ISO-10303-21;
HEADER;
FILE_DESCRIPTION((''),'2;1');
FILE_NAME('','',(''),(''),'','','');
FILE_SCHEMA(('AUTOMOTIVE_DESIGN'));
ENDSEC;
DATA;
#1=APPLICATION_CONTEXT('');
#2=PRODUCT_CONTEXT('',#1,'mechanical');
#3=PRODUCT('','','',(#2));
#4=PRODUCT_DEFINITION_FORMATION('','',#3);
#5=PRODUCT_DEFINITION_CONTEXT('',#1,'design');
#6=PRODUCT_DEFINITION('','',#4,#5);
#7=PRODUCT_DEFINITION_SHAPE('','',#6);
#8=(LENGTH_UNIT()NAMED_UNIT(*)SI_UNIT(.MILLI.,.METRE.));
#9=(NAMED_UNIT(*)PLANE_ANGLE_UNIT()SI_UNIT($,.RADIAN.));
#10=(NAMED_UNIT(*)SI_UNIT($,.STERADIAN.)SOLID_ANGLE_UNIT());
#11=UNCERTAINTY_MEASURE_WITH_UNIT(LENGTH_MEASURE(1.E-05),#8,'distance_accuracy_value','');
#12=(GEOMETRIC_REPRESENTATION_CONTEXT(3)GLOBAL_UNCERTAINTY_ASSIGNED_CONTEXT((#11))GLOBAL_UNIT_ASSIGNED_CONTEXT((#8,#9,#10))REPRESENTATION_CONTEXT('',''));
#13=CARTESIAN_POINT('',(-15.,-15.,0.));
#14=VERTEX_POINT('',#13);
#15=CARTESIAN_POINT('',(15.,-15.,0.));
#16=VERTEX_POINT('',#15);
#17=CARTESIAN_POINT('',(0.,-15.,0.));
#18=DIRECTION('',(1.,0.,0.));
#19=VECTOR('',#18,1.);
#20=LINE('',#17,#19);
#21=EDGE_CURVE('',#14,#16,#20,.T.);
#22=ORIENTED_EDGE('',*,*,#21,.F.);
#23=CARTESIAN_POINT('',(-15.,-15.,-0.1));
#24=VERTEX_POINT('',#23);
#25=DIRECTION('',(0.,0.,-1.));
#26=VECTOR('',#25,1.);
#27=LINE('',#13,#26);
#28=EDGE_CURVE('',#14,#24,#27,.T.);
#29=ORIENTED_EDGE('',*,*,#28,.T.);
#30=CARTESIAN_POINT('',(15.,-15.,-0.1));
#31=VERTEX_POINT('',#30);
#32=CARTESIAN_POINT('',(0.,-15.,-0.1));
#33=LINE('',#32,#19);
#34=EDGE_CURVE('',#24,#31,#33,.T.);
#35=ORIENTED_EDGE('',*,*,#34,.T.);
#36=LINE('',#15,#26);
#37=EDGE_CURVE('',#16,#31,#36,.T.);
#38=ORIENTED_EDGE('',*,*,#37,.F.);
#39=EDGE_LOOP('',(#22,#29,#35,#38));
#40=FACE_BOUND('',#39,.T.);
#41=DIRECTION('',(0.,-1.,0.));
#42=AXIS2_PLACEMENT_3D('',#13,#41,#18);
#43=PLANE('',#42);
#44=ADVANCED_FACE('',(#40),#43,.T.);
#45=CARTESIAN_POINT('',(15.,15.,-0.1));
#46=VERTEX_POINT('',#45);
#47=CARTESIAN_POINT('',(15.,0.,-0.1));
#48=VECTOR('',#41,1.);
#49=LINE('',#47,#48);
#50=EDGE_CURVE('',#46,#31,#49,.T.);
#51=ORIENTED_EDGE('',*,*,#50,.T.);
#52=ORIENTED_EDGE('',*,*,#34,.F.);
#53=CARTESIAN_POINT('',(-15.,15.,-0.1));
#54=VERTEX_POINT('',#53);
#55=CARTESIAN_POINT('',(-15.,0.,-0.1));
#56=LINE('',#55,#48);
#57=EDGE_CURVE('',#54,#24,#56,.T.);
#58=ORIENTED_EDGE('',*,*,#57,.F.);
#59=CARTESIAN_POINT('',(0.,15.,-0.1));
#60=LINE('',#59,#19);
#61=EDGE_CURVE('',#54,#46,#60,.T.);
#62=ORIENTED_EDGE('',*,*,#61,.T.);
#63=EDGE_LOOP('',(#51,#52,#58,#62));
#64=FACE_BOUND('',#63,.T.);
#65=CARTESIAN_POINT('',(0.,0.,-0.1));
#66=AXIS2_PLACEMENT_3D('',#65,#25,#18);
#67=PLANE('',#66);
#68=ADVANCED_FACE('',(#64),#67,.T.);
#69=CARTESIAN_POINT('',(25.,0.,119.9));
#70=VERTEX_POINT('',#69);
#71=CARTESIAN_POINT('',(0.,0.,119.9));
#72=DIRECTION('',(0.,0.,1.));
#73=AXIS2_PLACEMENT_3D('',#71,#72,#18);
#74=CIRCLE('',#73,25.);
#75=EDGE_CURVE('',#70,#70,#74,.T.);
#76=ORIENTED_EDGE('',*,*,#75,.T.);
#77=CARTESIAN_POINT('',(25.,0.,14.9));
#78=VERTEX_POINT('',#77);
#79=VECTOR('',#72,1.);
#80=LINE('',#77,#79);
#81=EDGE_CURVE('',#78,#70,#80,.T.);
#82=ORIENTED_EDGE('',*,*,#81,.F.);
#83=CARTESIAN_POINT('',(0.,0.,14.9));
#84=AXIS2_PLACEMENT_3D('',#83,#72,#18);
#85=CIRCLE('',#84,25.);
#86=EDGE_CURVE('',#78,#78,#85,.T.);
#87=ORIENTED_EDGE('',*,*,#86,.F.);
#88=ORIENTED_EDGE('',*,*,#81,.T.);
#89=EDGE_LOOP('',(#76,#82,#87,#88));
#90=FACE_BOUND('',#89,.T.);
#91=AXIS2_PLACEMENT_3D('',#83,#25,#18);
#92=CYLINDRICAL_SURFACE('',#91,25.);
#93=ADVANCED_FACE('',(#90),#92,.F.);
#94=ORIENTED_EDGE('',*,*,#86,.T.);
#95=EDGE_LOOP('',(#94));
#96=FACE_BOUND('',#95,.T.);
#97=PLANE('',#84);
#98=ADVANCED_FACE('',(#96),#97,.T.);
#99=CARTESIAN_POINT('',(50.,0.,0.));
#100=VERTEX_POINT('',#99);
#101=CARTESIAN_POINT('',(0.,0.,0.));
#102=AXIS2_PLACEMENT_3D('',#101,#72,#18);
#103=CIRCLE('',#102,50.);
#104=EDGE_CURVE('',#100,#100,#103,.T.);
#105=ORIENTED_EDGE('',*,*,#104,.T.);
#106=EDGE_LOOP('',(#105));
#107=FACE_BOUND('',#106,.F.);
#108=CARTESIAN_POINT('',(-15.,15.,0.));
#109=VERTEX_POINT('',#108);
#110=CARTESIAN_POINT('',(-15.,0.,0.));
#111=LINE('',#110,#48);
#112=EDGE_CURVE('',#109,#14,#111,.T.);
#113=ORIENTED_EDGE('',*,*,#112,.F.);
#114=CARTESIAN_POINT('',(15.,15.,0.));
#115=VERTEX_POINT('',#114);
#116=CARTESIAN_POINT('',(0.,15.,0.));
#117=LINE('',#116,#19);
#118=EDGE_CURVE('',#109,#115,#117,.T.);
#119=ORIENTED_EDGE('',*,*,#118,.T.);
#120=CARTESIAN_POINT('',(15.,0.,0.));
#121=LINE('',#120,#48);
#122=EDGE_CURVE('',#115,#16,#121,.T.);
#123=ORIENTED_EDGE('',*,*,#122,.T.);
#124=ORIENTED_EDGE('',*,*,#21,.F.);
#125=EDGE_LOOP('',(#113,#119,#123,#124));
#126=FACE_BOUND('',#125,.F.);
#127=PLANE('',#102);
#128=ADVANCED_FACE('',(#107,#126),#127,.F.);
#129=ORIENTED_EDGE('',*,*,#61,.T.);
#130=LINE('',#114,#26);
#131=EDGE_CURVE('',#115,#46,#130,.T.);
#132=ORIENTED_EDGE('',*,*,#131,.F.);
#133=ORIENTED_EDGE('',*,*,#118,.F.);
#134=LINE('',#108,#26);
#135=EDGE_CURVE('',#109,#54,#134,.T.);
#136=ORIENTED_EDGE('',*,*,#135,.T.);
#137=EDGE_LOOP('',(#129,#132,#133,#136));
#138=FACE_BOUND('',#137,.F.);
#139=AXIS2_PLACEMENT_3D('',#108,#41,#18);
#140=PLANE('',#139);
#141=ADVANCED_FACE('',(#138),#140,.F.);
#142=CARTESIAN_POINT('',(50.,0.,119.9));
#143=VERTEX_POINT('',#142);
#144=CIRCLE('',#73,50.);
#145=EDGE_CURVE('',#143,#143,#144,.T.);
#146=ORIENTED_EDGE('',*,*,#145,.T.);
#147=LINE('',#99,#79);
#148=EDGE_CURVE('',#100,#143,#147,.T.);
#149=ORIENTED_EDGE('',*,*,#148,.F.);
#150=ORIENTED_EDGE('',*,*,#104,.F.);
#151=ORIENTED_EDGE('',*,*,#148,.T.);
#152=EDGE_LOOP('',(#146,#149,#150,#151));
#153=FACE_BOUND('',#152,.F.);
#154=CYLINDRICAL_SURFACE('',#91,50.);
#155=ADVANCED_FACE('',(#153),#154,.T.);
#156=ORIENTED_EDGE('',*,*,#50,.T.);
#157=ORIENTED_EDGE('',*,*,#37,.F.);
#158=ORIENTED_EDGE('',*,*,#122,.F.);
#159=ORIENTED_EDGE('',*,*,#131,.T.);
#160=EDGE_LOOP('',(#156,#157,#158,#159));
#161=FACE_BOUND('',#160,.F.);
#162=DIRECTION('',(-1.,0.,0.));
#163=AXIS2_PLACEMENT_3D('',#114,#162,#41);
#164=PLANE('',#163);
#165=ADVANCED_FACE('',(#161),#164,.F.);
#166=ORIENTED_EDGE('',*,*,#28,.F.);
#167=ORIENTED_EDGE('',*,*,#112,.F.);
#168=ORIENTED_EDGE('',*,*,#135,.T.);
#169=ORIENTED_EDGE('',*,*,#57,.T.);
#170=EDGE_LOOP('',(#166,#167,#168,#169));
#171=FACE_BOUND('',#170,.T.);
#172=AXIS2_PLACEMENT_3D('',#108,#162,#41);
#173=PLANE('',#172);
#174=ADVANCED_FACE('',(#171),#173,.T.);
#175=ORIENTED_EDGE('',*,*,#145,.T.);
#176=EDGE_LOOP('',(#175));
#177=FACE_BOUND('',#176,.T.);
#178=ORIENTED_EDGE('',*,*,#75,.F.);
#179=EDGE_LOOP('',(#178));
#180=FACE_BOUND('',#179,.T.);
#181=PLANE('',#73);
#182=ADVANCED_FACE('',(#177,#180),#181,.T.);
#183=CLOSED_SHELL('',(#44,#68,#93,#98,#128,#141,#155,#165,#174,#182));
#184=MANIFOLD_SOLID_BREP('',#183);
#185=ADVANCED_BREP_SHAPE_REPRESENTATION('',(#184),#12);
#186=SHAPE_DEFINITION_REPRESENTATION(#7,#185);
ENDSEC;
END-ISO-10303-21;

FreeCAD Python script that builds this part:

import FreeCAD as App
import Part
import Sketcher
from FreeCAD import Vector

doc = App.newDocument("Part")
body = doc.addObject("PartDesign::Body", "Body")

# Sketch on XY plane
sketch1 = body.newObject("Sketcher::SketchObject", "Sketch")
sketch1.AttachmentSupport = (doc.getObject("XY_Plane"), [""])
sketch1.MapMode = "FlatFace"
sketch1.addGeometry(Part.Circle(Vector(0, 0, 0), Vector(0, 0, 1), 50), False)
sketch1.addConstraint([
    Sketcher.Constraint("Coincident", 0, 3, -1, 1),
    Sketcher.Constraint("Diameter", 0, 100.0),
])
pad1 = body.newObject("PartDesign::Pad", "Pad")
pad1.Profile = sketch1
pad1.Length = 14.9

# Sketch on XY plane
sketch2 = body.newObject("Sketcher::SketchObject", "Sketch001")
sketch2.AttachmentSupport = (doc.getObject("XY_Plane"), [""])
sketch2.MapMode = "FlatFace"
sketch2.AttachmentOffset = App.Placement(Vector(0, 0, 14.9), App.Rotation())
sketch2.addGeometry([
    Part.Circle(Vector(0, 0, 0), Vector(0, 0, 1), 50),
    Part.Circle(Vector(0, 0, 0), Vector(0, 0, 1), 25),
], False)
sketch2.addConstraint([
    Sketcher.Constraint("Coincident", 0, 3, -1, 1),
    Sketcher.Constraint("Coincident", 1, 3, -1, 1),
    Sketcher.Constraint("Diameter", 0, 100.0),
    Sketcher.Constraint("Diameter", 1, 50.0),
])
pad2 = body.newObject("PartDesign::Pad", "Pad001")
pad2.Profile = sketch2
pad2.Length = 105

# Sketch on XY plane
sketch3 = body.newObject("Sketcher::SketchObject", "Sketch002")
sketch3.AttachmentSupport = (doc.getObject("XY_Plane"), [""])
sketch3.MapMode = "FlatFace"
sketch3.addGeometry([
    Part.LineSegment(Vector(-15, -15, 0), Vector(-15, 15, 0)),
    Part.LineSegment(Vector(-15, 15, 0), Vector(15, 15, 0)),
    Part.LineSegment(Vector(15, 15, 0), Vector(15, -15, 0)),
    Part.LineSegment(Vector(15, -15, 0), Vector(-15, -15, 0)),
], False)
sketch3.addConstraint([
    Sketcher.Constraint("Coincident", 0, 2, 1, 1),
    Sketcher.Constraint("Coincident", 1, 2, 2, 1),
    Sketcher.Constraint("Coincident", 2, 2, 3, 1),
    Sketcher.Constraint("Coincident", 3, 2, 0, 1),
    Sketcher.Constraint("Vertical", 0),
    Sketcher.Constraint("Horizontal", 1),
    Sketcher.Constraint("Vertical", 2),
    Sketcher.Constraint("Horizontal", 3),
    Sketcher.Constraint("Symmetric", 0, 2, 2, 2, -1, 1),
    Sketcher.Constraint("Equal", 3, 0),
    Sketcher.Constraint("DistanceX", 1, 1, 1, 2, 30.0),
])
pad3 = body.newObject("PartDesign::Pad", "Pad002")
pad3.Profile = sketch3
pad3.Length = 0.1
pad3.Reversed = True

doc.recompute()
